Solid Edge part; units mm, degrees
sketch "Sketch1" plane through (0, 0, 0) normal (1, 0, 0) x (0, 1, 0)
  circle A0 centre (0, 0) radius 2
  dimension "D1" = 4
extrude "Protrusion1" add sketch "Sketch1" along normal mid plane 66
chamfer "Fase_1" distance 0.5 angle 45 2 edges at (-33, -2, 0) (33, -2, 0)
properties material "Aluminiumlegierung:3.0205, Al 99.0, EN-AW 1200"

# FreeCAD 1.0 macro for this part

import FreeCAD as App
import Part
import Sketcher
from FreeCAD import Vector
Q = App.Units.Quantity


def edges_at(feature, points):
    """Names of the edges that pass closest to the given points."""
    edges = feature.Shape.Edges
    near = lambda p: min(range(len(edges)), key=lambda i: edges[i].distToShape(Part.Vertex(*p))[0])
    return sorted({f"Edge{near(p) + 1}" for p in points})

doc = App.newDocument("Part")
body = doc.addObject("PartDesign::Body", "Body")

# Sketch on YZ plane
sketch1 = body.newObject("Sketcher::SketchObject", "Sketch")
sketch1.AttachmentSupport = (doc.getObject("YZ_Plane"), [""])
sketch1.MapMode = "FlatFace"
sketch1.addGeometry(Part.Circle(Vector(0, 0, 0), Vector(0, 0, 1), 2), False)
sketch1.addConstraint(Sketcher.Constraint("Coincident", 0, 3, -1, 1))
sketch1.addConstraint(Sketcher.Constraint("Diameter", 0, Q("4 mm")))
pad1 = body.newObject("PartDesign::Pad", "Pad")
pad1.Profile = sketch1
pad1.Length = 66
pad1.Midplane = True
doc.recompute()

chamfer = body.newObject("PartDesign::Chamfer", "Chamfer")
chamfer.Base = (pad1, edges_at(pad1, [(-33, -2, 0), (33, -2, 0)]))
chamfer.Size = 0.5

doc.recompute()
